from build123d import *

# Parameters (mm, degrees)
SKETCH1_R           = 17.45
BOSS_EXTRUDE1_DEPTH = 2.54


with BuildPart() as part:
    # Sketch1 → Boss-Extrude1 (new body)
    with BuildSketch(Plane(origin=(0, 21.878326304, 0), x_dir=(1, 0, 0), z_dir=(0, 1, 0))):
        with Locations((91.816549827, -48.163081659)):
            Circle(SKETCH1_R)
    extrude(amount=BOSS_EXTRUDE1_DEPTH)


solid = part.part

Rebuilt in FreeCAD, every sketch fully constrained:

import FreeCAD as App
import Part
import Sketcher
from FreeCAD import Vector

doc = App.newDocument("Part")
body = doc.addObject("PartDesign::Body", "Body")

# Sketch on XZ plane
sketch1 = body.newObject("Sketcher::SketchObject", "Sketch")
sketch1.AttachmentSupport = (doc.getObject("XZ_Plane"), [""])
sketch1.MapMode = "FlatFace"
sketch1.AttachmentOffset = App.Placement(Vector(0, 0, -21.878326), App.Rotation())
sketch1.addGeometry(Part.Circle(Vector(92, 48, 0), Vector(0, 0, 1), 17), False)
sketch1.addConstraint([
    Sketcher.Constraint("Diameter", 0, 34.9),
    Sketcher.Constraint("DistanceX", -1, 1, 0, 3, 91.81655),
    Sketcher.Constraint("DistanceY", -1, 1, 0, 3, 48.163082),
])
pad1 = body.newObject("PartDesign::Pad", "Pad")
pad1.Profile = sketch1
pad1.Length = 2.54
pad1.Reversed = True

doc.recompute()
